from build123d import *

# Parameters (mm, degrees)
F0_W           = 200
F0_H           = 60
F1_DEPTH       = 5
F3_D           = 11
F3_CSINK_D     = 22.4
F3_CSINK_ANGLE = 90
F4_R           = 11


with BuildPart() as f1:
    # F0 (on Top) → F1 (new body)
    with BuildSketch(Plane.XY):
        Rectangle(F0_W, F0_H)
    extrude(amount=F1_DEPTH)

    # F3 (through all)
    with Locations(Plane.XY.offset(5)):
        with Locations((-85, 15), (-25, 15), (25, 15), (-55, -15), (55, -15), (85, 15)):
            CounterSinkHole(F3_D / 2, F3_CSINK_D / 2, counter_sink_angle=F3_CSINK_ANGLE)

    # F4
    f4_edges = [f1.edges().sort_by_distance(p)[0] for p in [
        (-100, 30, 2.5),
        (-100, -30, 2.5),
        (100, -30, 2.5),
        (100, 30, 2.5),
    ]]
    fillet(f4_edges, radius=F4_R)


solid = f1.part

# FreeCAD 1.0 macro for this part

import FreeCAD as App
import Part
import Sketcher

V = App.Vector
Q = App.Units.Quantity


def edges_at(feature, points):
    """Names of the edges that pass closest to the given points."""
    edges = feature.Shape.Edges
    near = lambda p: min(range(len(edges)), key=lambda i: edges[i].distToShape(Part.Vertex(*p))[0])
    return sorted({f"Edge{near(p) + 1}" for p in points})

doc = App.newDocument("Part")
params = doc.addObject("Spreadsheet::Sheet", "Params")
for row, (alias, value) in enumerate([
    ("sketch1_width", "200 mm"),
    ("sketch1_height", "60 mm"),
    ("pad1_length", "5 mm"),
    ("sketch2_diameter", "11 mm"),
    ("hole_diameter", "11 mm"),
    ("hole_csink_diameter", "22.4 mm"),
    ("fillet_radius", "11 mm"),
], start=1):
    params.set(f"A{row}", alias)
    params.set(f"B{row}", "=" + value)
    params.setAlias(f"B{row}", alias)

body = doc.addObject("PartDesign::Body", "Body")

# Sketch on XY plane
sketch1 = doc.addObject("Sketcher::SketchObject", "Sketch")
body.addObject(sketch1)
sketch1.AttachmentSupport = (doc.XY_Plane, [""])
sketch1.MapMode = "FlatFace"
sketch1.addGeometry([
    Part.LineSegment(V(-100, 30, 0), V(-100, -30, 0)),
    Part.LineSegment(V(-100, -30, 0), V(100, -30, 0)),
    Part.LineSegment(V(100, -30, 0), V(100, 30, 0)),
    Part.LineSegment(V(100, 30, 0), V(-100, 30, 0)),
], False)
sketch1.addConstraint([
    Sketcher.Constraint("Coincident", 0, 2, 1, 1),
    Sketcher.Constraint("Coincident", 1, 2, 2, 1),
    Sketcher.Constraint("Coincident", 2, 2, 3, 1),
    Sketcher.Constraint("Coincident", 3, 2, 0, 1),
    Sketcher.Constraint("Vertical", 0),
    Sketcher.Constraint("Horizontal", 1),
    Sketcher.Constraint("Vertical", 2),
    Sketcher.Constraint("Horizontal", 3),
    Sketcher.Constraint("Symmetric", 0, 2, 2, 2, -1, 1),
    Sketcher.Constraint("DistanceX", 1, 1, 1, 2, Q("200 mm")),
    Sketcher.Constraint("DistanceY", 0, 2, 0, 1, Q("60 mm")),
])
sketch1.setExpression("Constraints[9]", "Params.sketch1_width")
sketch1.setExpression("Constraints[10]", "Params.sketch1_height")
pad1 = doc.addObject("PartDesign::Pad", "Pad")
body.addObject(pad1)
pad1.Profile = sketch1
pad1.setExpression("Length", "Params.pad1_length")

# Sketch on XY plane
sketch2 = doc.addObject("Sketcher::SketchObject", "Sketch001")
body.addObject(sketch2)
sketch2.AttachmentSupport = (doc.XY_Plane, [""])
sketch2.MapMode = "FlatFace"
sketch2.AttachmentOffset = App.Placement(V(0, 0, 5), App.Rotation())
sketch2.addGeometry([
    Part.Circle(V(-85, 15, 0), V(0, 0, 1), 5.5),  # 0
    Part.Circle(V(-25, 15, 0), V(0, 0, 1), 5.5),  # 1
    Part.Circle(V(25, 15, 0), V(0, 0, 1), 5.5),  # 2
    Part.Circle(V(-55, -15, 0), V(0, 0, 1), 5.5),  # 3
    Part.Circle(V(55, -15, 0), V(0, 0, 1), 5.5),  # 4
    Part.Circle(V(85, 15, 0), V(0, 0, 1), 5.5),  # 5
], False)
sketch2.addConstraint([
    Sketcher.Constraint("Equal", 0, 1),
    Sketcher.Constraint("Equal", 1, 2),
    Sketcher.Constraint("Equal", 2, 3),
    Sketcher.Constraint("Equal", 3, 4),
    Sketcher.Constraint("Equal", 4, 5),
    Sketcher.Constraint("Symmetric", 1, 3, 2, 3, -2),
    Sketcher.Constraint("Symmetric", 3, 3, 4, 3, -2),
    Sketcher.Constraint("Symmetric", 0, 3, 5, 3, -2),
    Sketcher.Constraint("Horizontal", 0, 3, 1, 3),
    Sketcher.Constraint("Diameter", 0, Q("11 mm")),
    Sketcher.Constraint("DistanceX", 0, 3, -1, 1, Q("85 mm")),
    Sketcher.Constraint("DistanceY", -1, 1, 0, 3, Q("15 mm")),
    Sketcher.Constraint("DistanceX", 1, 3, -1, 1, Q("25 mm")),
    Sketcher.Constraint("DistanceX", 3, 3, -1, 1, Q("55 mm")),
    Sketcher.Constraint("DistanceY", 3, 3, -1, 1, Q("15 mm")),
])
sketch2.setExpression("Constraints[9]", "Params.sketch2_diameter")
doc.recompute()
hole = doc.addObject("PartDesign::Hole", "Hole")
body.addObject(hole)
hole.Profile = sketch2
hole.ThreadType = "None"
hole.setExpression("Diameter", "Params.hole_diameter")
hole.DepthType = "ThroughAll"
hole.HoleCutType = "Countersink"
hole.setExpression("HoleCutDiameter", "Params.hole_csink_diameter")
hole.HoleCutCountersinkAngle = 90
doc.recompute()

fillet = doc.addObject("PartDesign::Fillet", "Fillet")
body.addObject(fillet)
fillet.Base = (hole, edges_at(hole, [
    (-100, 30, 2.5),
    (-100, -30, 2.5),
    (100, -30, 2.5),
    (100, 30, 2.5),
]))
fillet.setExpression("Radius", "Params.fillet_radius")

doc.recompute()
